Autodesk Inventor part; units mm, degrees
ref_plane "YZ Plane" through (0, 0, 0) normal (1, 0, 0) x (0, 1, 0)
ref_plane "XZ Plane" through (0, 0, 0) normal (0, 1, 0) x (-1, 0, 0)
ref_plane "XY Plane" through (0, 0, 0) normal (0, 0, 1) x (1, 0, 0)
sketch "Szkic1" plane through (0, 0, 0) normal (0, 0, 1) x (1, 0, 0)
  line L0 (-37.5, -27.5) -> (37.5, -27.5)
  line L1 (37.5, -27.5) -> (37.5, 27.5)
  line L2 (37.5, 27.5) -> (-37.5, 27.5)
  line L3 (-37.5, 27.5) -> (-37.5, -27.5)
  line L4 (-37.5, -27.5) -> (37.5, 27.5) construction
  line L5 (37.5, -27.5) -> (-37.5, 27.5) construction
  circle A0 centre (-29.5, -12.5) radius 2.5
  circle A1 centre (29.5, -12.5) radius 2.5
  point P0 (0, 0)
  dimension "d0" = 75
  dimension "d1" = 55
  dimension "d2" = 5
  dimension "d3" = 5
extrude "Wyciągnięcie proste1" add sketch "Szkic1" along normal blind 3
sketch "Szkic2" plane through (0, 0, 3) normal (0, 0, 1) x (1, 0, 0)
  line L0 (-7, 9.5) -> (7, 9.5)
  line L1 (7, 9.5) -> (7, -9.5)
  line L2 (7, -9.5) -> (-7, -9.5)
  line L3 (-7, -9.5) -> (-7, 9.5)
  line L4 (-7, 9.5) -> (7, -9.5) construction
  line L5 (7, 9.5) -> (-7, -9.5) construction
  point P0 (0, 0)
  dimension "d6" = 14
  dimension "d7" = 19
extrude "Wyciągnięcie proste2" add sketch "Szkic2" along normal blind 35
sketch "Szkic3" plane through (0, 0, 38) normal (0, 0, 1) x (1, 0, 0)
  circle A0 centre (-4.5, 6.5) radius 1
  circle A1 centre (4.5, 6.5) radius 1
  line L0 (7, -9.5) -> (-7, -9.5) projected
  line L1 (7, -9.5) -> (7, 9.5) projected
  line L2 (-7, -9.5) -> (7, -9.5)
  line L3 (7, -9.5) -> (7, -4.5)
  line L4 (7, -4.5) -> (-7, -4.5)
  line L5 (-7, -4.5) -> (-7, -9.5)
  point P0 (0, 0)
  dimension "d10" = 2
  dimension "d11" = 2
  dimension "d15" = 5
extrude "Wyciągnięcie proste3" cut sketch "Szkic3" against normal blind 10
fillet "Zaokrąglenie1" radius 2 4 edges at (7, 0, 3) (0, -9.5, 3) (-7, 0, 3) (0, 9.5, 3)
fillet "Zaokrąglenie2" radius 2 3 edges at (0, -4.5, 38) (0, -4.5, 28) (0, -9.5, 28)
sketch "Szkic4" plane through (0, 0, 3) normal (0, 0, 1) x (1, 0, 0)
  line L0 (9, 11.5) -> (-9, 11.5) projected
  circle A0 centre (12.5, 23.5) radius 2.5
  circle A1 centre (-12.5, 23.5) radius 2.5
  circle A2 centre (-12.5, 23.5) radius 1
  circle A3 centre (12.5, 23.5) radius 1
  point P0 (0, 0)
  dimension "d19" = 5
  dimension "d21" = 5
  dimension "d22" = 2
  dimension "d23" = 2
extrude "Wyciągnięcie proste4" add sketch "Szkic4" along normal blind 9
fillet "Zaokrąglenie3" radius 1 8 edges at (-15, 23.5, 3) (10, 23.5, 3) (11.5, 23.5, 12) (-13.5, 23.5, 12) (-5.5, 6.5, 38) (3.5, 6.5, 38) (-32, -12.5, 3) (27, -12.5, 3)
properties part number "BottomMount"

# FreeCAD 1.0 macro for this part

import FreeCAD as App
import Part
import Sketcher

V = App.Vector


def edges_at(feature, points):
    """Names of the edges that pass closest to the given points."""
    edges = feature.Shape.Edges
    near = lambda p: min(range(len(edges)), key=lambda i: edges[i].distToShape(Part.Vertex(*p))[0])
    return sorted({f"Edge{near(p) + 1}" for p in points})


def add_polygon(sketch, points):
    """Adds a closed chain of lines whose ends are joined by coincident constraints."""
    first, n = sketch.GeometryCount, len(points)
    for a, b in zip(points, points[1:] + points[:1]):
        sketch.addGeometry(Part.LineSegment(App.Vector(*a, 0), App.Vector(*b, 0)), False)
    for i in range(n):
        sketch.addConstraint(Sketcher.Constraint("Coincident", first + i, 2, first + (i + 1) % n, 1))

doc = App.newDocument("Part")
body = doc.addObject("PartDesign::Body", "Body")

# Sketch on XY plane
sketch1 = body.newObject("Sketcher::SketchObject", "Sketch")
sketch1.AttachmentSupport = (doc.getObject("XY_Plane"), [""])
sketch1.MapMode = "FlatFace"
add_polygon(sketch1, [(-37.5, 27.5), (-37.5, -27.5), (37.5, -27.5), (37.5, 27.5)])  # lines 0-3
sketch1.addGeometry(Part.Circle(V(-29.5, -12.5, 0), V(0, 0, 1), 2.5), False)  # 4
sketch1.addGeometry(Part.Circle(V(29.5, -12.5, 0), V(0, 0, 1), 2.5), False)  # 5
sketch1.addConstraint(Sketcher.Constraint("Vertical", 0))
sketch1.addConstraint(Sketcher.Constraint("Horizontal", 1))
sketch1.addConstraint(Sketcher.Constraint("Vertical", 2))
sketch1.addConstraint(Sketcher.Constraint("Horizontal", 3))
sketch1.addConstraint(Sketcher.Constraint("Equal", 4, 5))
sketch1.addConstraint(Sketcher.Constraint("Symmetric", 0, 2, 2, 2, -1, 1))
sketch1.addConstraint(Sketcher.Constraint("Symmetric", 4, 3, 5, 3, -2))
sketch1.addConstraint(Sketcher.Constraint("Diameter", 4, 5.0))
sketch1.addConstraint(Sketcher.Constraint("DistanceX", 1, 1, 1, 2, 75.0))
sketch1.addConstraint(Sketcher.Constraint("DistanceY", 0, 2, 0, 1, 55.0))
sketch1.addConstraint(Sketcher.Constraint("DistanceX", 4, 3, 5, 3, 59.0))
sketch1.addConstraint(Sketcher.Constraint("DistanceY", 0, 2, 4, 3, 15.0))
pad1 = body.newObject("PartDesign::Pad", "Pad")
pad1.Profile = sketch1
pad1.Length = 3

# Sketch on XY plane
sketch2 = body.newObject("Sketcher::SketchObject", "Sketch001")
sketch2.AttachmentSupport = (doc.getObject("XY_Plane"), [""])
sketch2.MapMode = "FlatFace"
sketch2.AttachmentOffset = App.Placement(V(0, 0, 3), App.Rotation())
add_polygon(sketch2, [(7, 9.5), (-7, 9.5), (-7, -9.5), (7, -9.5)])  # lines 0-3
sketch2.addConstraint(Sketcher.Constraint("Horizontal", 0))
sketch2.addConstraint(Sketcher.Constraint("Vertical", 1))
sketch2.addConstraint(Sketcher.Constraint("Horizontal", 2))
sketch2.addConstraint(Sketcher.Constraint("Vertical", 3))
sketch2.addConstraint(Sketcher.Constraint("Symmetric", 0, 2, 2, 2, -1, 1))
sketch2.addConstraint(Sketcher.Constraint("DistanceX", 0, 2, 0, 1, 14.0))
sketch2.addConstraint(Sketcher.Constraint("DistanceY", 1, 2, 1, 1, 19.0))
pad2 = body.newObject("PartDesign::Pad", "Pad001")
pad2.Profile = sketch2
pad2.Length = 35

# Sketch on XY plane
sketch3 = body.newObject("Sketcher::SketchObject", "Sketch002")
sketch3.AttachmentSupport = (doc.getObject("XY_Plane"), [""])
sketch3.MapMode = "FlatFace"
sketch3.AttachmentOffset = App.Placement(V(0, 0, 38), App.Rotation())
sketch3.addGeometry(Part.Circle(V(-4.5, 6.5, 0), V(0, 0, 1), 1), False)  # 0
sketch3.addGeometry(Part.Circle(V(4.5, 6.5, 0), V(0, 0, 1), 1), False)  # 1
add_polygon(sketch3, [(-7, -9.5), (7, -9.5), (7, -4.5), (-7, -4.5)])  # lines 2-5
sketch3.addConstraint(Sketcher.Constraint("Horizontal", 2))
sketch3.addConstraint(Sketcher.Constraint("Vertical", 3))
sketch3.addConstraint(Sketcher.Constraint("Horizontal", 4))
sketch3.addConstraint(Sketcher.Constraint("Vertical", 5))
sketch3.addConstraint(Sketcher.Constraint("Equal", 0, 1))
sketch3.addConstraint(Sketcher.Constraint("Symmetric", 0, 3, 1, 3, -2))
sketch3.addConstraint(Sketcher.Constraint("Diameter", 0, 2.0))
sketch3.addConstraint(Sketcher.Constraint("DistanceY", 3, 1, 3, 2, 5.0))
sketch3.addConstraint(Sketcher.Constraint("DistanceX", 2, 1, 2, 2, 14.0))
sketch3.addConstraint(Sketcher.Constraint("DistanceX", -1, 1, 2, 2, 7.0))
sketch3.addConstraint(Sketcher.Constraint("DistanceX", 0, 3, 1, 3, 9.0))
sketch3.addConstraint(Sketcher.Constraint("DistanceY", 2, 2, 1, 3, 16.0))
sketch3.addConstraint(Sketcher.Constraint("DistanceY", -1, 1, 0, 3, 6.5))
pocket1 = body.newObject("PartDesign::Pocket", "Pocket")
pocket1.Profile = sketch3
pocket1.Length = 10
doc.recompute()

fillet = body.newObject("PartDesign::Fillet", "Fillet")
fillet.Base = (pocket1, edges_at(pocket1, [
    (7, 0, 3),
    (0, -9.5, 3),
    (-7, 0, 3),
    (0, 9.5, 3),
]))
fillet.Radius = 2
doc.recompute()

fillet2 = body.newObject("PartDesign::Fillet", "Fillet001")
fillet2.Base = (fillet, edges_at(fillet, [(0, -4.5, 38), (0, -4.5, 28), (0, -9.5, 28)]))
fillet2.Radius = 2

# Sketch on XY plane
sketch4 = body.newObject("Sketcher::SketchObject", "Sketch003")
sketch4.AttachmentSupport = (doc.getObject("XY_Plane"), [""])
sketch4.MapMode = "FlatFace"
sketch4.AttachmentOffset = App.Placement(V(0, 0, 3), App.Rotation())
sketch4.addGeometry(Part.Circle(V(12.5, 23.5, 0), V(0, 0, 1), 2.5), False)
sketch4.addGeometry(Part.Circle(V(12.5, 23.5, 0), V(0, 0, 1), 1), False)
sketch4.addGeometry(Part.Circle(V(-12.5, 23.5, 0), V(0, 0, 1), 2.5), False)
sketch4.addGeometry(Part.Circle(V(-12.5, 23.5, 0), V(0, 0, 1), 1), False)
sketch4.addConstraint(Sketcher.Constraint("Coincident", 1, 3, 0, 3))
sketch4.addConstraint(Sketcher.Constraint("Coincident", 3, 3, 2, 3))
sketch4.addConstraint(Sketcher.Constraint("Equal", 0, 2))
sketch4.addConstraint(Sketcher.Constraint("Equal", 1, 3))
sketch4.addConstraint(Sketcher.Constraint("Symmetric", 0, 3, 2, 3, -2))
sketch4.addConstraint(Sketcher.Constraint("Diameter", 0, 5.0))
sketch4.addConstraint(Sketcher.Constraint("Diameter", 1, 2.0))
sketch4.addConstraint(Sketcher.Constraint("DistanceX", 2, 3, 0, 3, 25.0))
sketch4.addConstraint(Sketcher.Constraint("DistanceY", -1, 1, 0, 3, 23.5))
pad3 = body.newObject("PartDesign::Pad", "Pad002")
pad3.Profile = sketch4
pad3.Length = 9
doc.recompute()

fillet3 = body.newObject("PartDesign::Fillet", "Fillet002")
fillet3.Base = (pad3, edges_at(pad3, [
    (-15, 23.5, 3),
    (10, 23.5, 3),
    (11.5, 23.5, 12),
    (-13.5, 23.5, 12),
    (-5.5, 6.5, 38),
    (3.5, 6.5, 38),
    (-32, -12.5, 3),
    (27, -12.5, 3),
]))
fillet3.Radius = 1

doc.recompute()
